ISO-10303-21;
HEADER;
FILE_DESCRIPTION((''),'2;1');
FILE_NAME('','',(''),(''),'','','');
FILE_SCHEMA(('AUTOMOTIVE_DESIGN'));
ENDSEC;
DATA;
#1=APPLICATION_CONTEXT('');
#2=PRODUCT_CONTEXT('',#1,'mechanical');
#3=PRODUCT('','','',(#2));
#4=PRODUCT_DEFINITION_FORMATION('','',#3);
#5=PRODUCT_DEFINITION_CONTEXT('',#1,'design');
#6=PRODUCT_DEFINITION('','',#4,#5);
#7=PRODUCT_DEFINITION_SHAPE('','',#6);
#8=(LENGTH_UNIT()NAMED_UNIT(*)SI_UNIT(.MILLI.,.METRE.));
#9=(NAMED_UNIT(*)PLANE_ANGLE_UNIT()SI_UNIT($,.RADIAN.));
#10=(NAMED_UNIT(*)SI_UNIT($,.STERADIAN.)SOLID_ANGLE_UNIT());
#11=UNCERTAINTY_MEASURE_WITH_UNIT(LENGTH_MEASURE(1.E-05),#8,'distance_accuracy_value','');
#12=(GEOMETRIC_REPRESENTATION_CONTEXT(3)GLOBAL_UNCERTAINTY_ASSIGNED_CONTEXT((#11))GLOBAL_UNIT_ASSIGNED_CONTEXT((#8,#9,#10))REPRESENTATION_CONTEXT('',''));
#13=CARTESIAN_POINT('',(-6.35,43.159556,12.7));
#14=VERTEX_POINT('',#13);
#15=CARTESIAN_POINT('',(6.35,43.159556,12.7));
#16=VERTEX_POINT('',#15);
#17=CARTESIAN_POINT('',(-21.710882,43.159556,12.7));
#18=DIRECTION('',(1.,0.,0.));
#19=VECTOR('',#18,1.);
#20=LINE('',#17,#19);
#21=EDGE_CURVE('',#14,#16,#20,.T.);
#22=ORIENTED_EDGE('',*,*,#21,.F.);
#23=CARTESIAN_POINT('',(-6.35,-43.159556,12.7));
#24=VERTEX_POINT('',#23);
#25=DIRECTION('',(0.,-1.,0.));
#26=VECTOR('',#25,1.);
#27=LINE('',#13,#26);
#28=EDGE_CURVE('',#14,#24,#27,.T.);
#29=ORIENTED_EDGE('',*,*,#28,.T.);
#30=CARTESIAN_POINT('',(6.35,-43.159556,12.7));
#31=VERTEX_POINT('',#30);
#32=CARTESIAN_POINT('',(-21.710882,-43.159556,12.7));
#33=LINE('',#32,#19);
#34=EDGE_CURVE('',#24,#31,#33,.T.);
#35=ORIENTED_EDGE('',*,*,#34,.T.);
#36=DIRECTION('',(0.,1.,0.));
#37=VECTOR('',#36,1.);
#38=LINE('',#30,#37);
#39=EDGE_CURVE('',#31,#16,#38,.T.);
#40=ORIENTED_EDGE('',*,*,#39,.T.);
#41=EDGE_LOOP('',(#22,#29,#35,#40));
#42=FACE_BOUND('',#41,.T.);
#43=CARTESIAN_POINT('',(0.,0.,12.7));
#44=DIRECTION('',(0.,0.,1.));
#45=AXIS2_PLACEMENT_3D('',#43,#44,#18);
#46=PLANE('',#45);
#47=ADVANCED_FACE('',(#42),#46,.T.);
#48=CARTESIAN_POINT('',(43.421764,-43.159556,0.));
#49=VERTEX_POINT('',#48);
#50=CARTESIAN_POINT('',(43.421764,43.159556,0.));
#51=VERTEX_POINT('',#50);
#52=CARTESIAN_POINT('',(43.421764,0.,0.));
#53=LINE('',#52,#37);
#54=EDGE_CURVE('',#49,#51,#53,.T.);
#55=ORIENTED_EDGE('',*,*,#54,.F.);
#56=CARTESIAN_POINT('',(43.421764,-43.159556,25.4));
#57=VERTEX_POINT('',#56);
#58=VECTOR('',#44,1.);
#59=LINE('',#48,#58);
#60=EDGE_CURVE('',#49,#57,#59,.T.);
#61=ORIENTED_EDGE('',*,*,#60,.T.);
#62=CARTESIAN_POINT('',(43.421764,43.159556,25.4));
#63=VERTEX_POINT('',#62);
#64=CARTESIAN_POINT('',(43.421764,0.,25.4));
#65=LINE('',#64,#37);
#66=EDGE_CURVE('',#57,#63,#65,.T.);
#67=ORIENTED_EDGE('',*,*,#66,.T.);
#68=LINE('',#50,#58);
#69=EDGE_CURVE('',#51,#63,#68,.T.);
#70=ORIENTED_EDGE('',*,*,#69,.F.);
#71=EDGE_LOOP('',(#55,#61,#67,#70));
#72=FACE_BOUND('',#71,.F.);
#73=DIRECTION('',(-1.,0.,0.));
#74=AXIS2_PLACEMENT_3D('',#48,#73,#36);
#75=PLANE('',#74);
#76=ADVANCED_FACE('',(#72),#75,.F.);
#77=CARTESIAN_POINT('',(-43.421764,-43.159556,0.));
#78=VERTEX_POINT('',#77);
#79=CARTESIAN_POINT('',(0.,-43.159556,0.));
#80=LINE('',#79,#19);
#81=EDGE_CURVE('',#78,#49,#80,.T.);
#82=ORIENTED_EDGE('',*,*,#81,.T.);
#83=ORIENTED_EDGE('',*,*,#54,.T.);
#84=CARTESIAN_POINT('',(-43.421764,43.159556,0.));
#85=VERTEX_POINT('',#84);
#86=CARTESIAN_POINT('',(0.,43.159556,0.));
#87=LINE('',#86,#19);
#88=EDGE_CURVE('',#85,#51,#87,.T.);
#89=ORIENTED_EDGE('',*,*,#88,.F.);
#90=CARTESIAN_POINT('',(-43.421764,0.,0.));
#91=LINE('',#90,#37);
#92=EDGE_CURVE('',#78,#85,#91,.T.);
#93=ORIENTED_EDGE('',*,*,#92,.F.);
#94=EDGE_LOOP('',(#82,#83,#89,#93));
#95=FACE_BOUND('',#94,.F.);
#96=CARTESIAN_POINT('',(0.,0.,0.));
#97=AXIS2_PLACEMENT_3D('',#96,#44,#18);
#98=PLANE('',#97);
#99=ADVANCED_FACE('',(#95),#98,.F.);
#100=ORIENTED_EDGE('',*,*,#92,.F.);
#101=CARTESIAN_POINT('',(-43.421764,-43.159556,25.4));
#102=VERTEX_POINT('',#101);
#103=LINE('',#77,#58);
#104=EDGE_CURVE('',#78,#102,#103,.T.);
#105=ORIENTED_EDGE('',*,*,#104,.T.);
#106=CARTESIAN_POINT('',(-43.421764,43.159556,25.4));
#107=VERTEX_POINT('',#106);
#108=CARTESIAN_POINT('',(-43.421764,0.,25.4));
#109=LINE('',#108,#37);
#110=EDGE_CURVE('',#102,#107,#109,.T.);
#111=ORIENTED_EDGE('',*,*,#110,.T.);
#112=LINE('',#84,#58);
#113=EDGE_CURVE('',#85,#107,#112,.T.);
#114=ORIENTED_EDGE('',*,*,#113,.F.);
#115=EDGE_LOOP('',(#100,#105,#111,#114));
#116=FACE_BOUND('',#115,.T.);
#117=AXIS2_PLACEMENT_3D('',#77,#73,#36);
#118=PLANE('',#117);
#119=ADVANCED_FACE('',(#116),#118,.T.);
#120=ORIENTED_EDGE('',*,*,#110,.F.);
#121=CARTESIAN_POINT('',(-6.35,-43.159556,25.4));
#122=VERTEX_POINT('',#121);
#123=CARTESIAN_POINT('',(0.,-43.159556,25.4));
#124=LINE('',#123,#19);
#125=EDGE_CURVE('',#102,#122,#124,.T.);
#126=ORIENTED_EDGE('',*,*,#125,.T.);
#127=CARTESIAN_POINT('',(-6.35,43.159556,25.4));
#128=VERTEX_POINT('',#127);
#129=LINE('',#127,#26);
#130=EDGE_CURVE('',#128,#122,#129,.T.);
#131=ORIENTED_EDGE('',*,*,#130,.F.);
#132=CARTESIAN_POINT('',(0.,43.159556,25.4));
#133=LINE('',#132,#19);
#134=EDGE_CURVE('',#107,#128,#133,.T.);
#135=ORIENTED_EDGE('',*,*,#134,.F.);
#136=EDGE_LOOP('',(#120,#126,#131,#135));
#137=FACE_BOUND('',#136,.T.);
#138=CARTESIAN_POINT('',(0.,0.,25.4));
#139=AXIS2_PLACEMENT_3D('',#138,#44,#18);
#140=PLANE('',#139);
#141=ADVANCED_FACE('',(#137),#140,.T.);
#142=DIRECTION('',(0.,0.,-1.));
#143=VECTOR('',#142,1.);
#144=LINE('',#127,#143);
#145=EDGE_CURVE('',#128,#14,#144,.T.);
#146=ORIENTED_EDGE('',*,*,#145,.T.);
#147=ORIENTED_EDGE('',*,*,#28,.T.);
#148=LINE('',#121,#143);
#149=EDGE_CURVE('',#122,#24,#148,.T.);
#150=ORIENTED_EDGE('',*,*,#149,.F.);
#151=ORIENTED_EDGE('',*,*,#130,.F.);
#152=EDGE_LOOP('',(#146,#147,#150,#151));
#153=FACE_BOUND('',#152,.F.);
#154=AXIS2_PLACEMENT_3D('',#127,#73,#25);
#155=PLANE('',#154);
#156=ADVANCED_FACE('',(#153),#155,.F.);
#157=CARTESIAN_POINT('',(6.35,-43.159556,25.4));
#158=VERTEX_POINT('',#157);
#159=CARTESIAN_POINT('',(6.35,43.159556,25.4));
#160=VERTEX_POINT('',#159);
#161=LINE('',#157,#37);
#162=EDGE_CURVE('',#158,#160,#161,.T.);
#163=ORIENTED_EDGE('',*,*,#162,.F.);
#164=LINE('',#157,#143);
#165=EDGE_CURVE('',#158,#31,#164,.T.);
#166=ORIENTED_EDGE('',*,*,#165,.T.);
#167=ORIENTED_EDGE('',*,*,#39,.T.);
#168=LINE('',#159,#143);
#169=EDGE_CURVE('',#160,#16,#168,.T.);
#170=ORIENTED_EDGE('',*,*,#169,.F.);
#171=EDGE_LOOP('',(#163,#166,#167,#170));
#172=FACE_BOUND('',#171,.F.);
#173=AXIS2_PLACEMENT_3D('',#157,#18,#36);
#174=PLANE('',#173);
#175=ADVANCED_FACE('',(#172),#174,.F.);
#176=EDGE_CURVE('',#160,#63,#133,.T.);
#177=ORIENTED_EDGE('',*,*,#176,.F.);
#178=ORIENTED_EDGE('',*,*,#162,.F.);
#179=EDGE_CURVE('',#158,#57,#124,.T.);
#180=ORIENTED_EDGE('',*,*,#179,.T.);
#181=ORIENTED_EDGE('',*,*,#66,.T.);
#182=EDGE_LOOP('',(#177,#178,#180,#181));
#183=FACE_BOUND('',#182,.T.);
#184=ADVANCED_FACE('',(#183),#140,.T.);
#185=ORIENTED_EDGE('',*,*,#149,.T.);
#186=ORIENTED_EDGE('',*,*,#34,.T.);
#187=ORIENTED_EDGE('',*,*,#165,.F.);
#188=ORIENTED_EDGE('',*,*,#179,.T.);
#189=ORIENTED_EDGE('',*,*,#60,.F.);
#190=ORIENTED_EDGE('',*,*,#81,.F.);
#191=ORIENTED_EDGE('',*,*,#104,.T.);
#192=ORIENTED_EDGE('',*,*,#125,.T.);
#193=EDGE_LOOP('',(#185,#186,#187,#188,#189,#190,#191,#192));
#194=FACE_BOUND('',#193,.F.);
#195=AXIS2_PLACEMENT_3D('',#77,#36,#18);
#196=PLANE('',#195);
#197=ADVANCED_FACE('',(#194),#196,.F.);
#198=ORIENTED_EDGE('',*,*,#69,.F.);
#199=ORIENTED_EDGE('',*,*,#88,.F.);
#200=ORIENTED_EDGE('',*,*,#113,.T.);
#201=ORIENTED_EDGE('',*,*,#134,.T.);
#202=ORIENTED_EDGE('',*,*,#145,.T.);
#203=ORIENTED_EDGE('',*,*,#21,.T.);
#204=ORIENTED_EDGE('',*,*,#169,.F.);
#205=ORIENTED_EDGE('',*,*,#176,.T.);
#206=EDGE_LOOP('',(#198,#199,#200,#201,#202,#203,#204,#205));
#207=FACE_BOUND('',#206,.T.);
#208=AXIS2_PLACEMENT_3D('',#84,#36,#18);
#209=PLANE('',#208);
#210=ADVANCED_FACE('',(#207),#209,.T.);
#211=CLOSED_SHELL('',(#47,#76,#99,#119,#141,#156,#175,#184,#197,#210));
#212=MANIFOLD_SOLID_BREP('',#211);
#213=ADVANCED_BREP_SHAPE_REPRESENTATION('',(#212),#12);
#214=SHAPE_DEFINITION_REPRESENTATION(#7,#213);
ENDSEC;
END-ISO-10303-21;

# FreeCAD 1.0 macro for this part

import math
import FreeCAD as App
import Part
import Sketcher
Q = App.Units.Quantity

doc = App.newDocument("Part")
body = doc.addObject("PartDesign::Body", "Body")

sketch1 = body.newObject("Sketcher::SketchObject", "Sketch")
sketch1.AttachmentSupport = (doc.getObject("XY_Plane"), [""])
sketch1.MapMode = "FlatFace"
sketch1.addGeometry([
    Part.LineSegment(App.Vector(-43, 43, 0), App.Vector(-43, -43, 0)),
    Part.LineSegment(App.Vector(-43, -43, 0), App.Vector(43, -43, 0)),
    Part.LineSegment(App.Vector(43, -43, 0), App.Vector(43, 43, 0)),
    Part.LineSegment(App.Vector(43, 43, 0), App.Vector(-43, 43, 0)),
], False)
sketch1.addConstraint([
    Sketcher.Constraint("Coincident", 0, 2, 1, 1),
    Sketcher.Constraint("Coincident", 1, 2, 2, 1),
    Sketcher.Constraint("Coincident", 2, 2, 3, 1),
    Sketcher.Constraint("Coincident", 3, 2, 0, 1),
    Sketcher.Constraint("Vertical", 0),
    Sketcher.Constraint("Horizontal", 1),
    Sketcher.Constraint("Vertical", 2),
    Sketcher.Constraint("Horizontal", 3),
    Sketcher.Constraint("Symmetric", 0, 2, 2, 2, -1, 1),
    Sketcher.Constraint("DistanceX", 1, 1, 1, 2, 86.843528),
    Sketcher.Constraint("DistanceY", 0, 2, 0, 1, 86.319112),
])
pad1 = body.newObject("PartDesign::Pad", "Pad")
pad1.Profile = sketch1
pad1.Length = Q("1 in")

sketch2 = body.newObject("Sketcher::SketchObject", "Sketch001")
sketch2.AttachmentSupport = (doc.getObject("XY_Plane"), [""])
sketch2.MapMode = "FlatFace"
sketch2.AttachmentOffset = App.Placement(App.Vector(0, 0, 1 * 25.4), App.Rotation())
sketch2.addGeometry([
    Part.ArcOfCircle(Part.Circle(App.Vector(0, 43, 0), App.Vector(0, 0, 1), 6), math.radians(0), math.radians(180)),
    Part.LineSegment(App.Vector(-6, 43, 0), App.Vector(-6, -43, 0)),
    Part.ArcOfCircle(Part.Circle(App.Vector(0, -43, 0), App.Vector(0, 0, 1), 6), math.radians(180), math.radians(360)),
    Part.LineSegment(App.Vector(6, -43, 0), App.Vector(6, 43, 0)),
], False)
sketch2.addConstraint([
    Sketcher.Constraint("Tangent", 0, 2, 1, 1),
    Sketcher.Constraint("Tangent", 1, 2, 2, 1),
    Sketcher.Constraint("Tangent", 2, 2, 3, 1),
    Sketcher.Constraint("Tangent", 3, 2, 0, 1),
    Sketcher.Constraint("Vertical", 1),
    Sketcher.Constraint("Vertical", 3),
    Sketcher.Constraint("Symmetric", 0, 3, 2, 3, -1, 1),
    Sketcher.Constraint("Radius", 0, Q("0.25 in")),
    Sketcher.Constraint("DistanceY", 1, 2, 1, 1, 86.319112),
])
pocket1 = body.newObject("PartDesign::Pocket", "Pocket")
pocket1.Profile = sketch2
pocket1.Length = Q("0.5 in")

doc.recompute()
